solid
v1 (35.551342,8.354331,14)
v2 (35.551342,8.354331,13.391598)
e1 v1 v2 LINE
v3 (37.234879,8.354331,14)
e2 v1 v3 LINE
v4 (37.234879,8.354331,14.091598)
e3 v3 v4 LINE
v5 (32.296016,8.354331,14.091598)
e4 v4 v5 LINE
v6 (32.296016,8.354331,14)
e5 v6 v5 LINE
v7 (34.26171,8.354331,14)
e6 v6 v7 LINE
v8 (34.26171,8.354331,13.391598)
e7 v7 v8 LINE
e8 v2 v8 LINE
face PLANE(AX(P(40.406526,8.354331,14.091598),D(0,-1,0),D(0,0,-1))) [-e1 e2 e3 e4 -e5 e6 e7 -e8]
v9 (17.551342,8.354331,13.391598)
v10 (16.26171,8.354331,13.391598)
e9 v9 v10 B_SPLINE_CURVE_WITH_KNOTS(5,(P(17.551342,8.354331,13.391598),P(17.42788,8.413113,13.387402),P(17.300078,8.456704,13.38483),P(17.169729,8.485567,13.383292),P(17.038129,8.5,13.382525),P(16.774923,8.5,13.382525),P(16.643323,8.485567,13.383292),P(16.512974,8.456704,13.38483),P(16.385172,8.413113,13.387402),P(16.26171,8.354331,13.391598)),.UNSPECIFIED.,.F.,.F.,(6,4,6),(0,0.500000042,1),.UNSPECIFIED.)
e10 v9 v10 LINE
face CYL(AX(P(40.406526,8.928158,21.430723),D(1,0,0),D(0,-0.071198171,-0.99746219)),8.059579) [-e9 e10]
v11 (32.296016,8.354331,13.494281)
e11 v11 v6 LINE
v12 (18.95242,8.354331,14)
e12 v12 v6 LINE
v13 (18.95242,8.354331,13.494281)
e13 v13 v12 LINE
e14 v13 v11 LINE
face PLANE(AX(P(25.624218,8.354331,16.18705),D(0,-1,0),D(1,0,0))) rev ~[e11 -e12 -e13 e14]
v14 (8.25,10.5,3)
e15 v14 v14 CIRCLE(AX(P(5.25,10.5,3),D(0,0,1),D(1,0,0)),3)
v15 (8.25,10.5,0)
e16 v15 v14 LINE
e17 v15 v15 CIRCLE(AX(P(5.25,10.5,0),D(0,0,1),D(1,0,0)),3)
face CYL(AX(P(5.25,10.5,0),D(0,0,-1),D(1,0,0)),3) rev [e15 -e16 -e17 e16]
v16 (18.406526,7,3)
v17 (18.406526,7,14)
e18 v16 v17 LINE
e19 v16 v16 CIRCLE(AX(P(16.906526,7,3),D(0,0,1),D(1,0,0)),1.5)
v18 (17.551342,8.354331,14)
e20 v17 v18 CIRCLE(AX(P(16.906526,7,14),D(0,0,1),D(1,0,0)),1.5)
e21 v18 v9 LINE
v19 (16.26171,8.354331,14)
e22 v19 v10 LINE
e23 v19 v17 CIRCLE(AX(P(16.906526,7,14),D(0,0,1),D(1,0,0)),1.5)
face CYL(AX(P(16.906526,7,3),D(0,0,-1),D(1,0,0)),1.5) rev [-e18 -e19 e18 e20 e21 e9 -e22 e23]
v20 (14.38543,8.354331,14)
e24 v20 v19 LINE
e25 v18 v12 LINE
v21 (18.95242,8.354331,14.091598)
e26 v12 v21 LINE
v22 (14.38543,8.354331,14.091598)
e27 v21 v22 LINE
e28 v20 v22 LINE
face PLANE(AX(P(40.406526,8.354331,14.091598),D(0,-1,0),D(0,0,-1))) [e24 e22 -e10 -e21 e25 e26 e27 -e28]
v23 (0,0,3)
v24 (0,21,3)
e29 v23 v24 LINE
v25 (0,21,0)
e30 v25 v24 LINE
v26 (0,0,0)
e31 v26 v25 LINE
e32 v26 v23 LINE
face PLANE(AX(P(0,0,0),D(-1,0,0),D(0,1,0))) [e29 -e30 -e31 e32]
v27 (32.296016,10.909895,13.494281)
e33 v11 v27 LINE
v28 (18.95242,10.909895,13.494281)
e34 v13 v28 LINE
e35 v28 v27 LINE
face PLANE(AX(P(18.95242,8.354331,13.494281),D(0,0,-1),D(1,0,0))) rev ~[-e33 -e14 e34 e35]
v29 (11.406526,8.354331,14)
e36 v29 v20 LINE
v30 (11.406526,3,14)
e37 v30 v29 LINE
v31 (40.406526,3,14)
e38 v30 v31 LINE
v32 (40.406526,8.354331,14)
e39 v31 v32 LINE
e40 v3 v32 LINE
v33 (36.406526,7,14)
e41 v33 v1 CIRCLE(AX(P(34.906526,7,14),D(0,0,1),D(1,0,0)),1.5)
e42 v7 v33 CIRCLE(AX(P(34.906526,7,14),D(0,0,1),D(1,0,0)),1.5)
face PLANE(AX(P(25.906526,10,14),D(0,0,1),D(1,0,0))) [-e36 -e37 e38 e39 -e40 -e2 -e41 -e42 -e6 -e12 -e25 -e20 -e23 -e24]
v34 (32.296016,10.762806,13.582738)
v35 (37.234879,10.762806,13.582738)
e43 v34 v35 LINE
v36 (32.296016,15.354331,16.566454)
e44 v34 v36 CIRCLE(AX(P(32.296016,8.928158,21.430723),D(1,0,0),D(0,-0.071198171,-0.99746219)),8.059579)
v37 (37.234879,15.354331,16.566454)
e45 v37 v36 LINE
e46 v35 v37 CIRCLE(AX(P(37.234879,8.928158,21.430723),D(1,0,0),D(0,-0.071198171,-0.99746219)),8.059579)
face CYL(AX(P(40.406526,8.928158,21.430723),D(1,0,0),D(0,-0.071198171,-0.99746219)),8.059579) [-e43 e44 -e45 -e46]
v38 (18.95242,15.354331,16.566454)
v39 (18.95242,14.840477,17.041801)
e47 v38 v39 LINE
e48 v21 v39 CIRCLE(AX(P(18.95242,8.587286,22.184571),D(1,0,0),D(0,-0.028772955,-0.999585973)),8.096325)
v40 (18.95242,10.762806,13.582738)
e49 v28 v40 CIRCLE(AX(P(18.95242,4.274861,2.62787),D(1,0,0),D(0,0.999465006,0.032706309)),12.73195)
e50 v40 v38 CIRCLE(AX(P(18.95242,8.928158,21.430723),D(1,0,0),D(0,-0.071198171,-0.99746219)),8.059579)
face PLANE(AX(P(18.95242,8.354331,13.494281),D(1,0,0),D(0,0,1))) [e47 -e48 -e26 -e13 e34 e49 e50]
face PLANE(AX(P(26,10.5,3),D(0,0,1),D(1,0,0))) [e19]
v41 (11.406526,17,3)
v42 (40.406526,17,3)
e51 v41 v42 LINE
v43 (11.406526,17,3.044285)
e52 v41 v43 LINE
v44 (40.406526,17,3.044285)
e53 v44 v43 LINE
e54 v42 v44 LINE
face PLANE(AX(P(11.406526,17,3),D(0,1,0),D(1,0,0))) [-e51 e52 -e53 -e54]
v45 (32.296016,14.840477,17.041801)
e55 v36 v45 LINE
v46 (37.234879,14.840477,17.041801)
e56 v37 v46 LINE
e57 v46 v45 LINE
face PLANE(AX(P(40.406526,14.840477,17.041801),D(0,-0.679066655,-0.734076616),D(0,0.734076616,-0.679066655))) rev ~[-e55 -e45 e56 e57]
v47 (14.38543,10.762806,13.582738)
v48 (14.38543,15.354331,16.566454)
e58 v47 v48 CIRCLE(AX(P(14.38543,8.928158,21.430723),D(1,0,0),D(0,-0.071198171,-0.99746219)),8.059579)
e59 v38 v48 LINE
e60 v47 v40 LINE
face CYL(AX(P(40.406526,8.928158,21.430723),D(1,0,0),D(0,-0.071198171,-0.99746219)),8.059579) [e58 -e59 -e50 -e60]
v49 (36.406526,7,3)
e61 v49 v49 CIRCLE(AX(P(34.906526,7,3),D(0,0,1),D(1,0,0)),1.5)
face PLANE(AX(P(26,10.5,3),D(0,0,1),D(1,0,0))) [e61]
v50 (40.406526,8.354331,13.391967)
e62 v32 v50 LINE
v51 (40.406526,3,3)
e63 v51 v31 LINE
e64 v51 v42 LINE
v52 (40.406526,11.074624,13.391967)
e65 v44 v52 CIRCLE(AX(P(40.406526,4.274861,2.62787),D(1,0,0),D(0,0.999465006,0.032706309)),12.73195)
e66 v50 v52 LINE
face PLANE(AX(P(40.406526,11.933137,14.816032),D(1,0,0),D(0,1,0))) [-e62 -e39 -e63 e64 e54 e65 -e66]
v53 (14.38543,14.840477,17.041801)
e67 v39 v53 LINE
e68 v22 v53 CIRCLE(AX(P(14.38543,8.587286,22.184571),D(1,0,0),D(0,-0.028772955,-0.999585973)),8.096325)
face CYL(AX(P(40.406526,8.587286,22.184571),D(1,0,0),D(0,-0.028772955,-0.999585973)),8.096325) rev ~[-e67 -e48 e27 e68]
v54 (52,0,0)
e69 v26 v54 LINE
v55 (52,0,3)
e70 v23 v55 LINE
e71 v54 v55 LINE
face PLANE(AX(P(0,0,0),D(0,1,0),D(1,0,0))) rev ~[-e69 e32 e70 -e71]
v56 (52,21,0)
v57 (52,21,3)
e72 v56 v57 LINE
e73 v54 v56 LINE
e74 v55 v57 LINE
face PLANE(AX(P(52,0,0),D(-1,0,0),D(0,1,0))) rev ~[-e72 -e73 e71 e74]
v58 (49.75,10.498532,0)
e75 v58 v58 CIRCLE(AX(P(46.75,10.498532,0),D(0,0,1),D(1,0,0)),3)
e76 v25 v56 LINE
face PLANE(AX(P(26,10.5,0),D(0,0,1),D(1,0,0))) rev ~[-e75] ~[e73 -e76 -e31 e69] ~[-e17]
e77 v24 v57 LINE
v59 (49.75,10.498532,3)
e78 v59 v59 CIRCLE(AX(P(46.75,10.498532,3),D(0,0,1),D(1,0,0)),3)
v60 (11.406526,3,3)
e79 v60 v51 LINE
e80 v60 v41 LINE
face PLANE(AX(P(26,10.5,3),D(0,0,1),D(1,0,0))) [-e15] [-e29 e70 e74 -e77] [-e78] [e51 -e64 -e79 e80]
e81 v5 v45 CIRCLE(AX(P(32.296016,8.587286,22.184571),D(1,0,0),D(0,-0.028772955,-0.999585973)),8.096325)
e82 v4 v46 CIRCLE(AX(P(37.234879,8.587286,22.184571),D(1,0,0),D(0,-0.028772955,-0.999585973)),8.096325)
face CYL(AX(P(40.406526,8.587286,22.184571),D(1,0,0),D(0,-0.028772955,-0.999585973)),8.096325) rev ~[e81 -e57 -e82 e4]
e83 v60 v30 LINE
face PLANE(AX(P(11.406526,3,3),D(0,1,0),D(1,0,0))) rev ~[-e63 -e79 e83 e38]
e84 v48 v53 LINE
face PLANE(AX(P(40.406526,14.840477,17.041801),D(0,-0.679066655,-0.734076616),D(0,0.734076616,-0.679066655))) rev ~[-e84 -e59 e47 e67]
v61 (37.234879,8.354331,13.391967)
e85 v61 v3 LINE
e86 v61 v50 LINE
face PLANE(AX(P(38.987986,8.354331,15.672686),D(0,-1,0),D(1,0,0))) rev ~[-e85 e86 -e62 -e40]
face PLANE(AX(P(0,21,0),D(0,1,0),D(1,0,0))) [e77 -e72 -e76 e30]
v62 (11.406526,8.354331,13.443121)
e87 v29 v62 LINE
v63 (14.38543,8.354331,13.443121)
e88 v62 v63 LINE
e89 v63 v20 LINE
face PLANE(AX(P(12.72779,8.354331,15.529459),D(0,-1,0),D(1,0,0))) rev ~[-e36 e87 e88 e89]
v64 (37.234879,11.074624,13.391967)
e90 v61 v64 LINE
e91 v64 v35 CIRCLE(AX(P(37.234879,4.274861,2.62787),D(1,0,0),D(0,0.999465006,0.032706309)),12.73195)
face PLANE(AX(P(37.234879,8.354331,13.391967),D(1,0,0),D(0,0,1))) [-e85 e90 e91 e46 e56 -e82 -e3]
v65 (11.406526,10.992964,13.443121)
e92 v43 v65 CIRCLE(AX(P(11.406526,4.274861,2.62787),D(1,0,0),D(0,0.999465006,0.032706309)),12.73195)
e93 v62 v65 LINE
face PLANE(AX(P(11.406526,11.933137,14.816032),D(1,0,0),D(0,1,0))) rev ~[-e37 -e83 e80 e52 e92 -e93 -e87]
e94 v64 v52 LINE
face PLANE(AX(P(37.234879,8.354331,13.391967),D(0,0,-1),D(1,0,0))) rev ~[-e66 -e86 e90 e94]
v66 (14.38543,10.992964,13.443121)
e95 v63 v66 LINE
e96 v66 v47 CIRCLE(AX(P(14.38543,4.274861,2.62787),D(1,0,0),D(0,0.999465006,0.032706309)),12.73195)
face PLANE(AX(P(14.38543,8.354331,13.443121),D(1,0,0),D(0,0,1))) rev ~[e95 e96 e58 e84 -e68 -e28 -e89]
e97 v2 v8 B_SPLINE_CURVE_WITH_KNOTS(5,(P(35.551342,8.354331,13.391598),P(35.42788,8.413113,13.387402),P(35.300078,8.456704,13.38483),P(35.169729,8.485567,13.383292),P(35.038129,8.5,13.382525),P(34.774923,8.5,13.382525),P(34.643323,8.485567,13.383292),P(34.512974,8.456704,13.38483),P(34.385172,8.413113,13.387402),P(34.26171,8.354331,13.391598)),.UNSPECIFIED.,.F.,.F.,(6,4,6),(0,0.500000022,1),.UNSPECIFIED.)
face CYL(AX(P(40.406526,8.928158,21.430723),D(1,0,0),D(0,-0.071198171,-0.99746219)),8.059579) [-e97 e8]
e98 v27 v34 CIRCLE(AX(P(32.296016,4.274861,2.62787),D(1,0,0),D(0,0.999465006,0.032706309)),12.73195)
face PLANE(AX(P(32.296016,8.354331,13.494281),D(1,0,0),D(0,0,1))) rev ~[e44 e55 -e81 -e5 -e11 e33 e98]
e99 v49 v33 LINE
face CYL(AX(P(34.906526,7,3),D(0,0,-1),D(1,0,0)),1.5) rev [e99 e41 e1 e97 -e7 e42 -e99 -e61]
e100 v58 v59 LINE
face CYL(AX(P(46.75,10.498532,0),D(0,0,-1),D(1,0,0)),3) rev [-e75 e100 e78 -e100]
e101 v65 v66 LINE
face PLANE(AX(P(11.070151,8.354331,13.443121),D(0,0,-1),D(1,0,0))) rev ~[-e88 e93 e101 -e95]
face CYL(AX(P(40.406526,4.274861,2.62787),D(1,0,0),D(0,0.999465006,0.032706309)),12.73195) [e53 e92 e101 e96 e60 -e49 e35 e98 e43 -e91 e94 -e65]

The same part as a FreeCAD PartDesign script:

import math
import FreeCAD as App
import Part
import Sketcher
Q = App.Units.Quantity


def add_polygon(sketch, points):
    """Adds a closed chain of lines whose ends are joined by coincident constraints."""
    first, n = sketch.GeometryCount, len(points)
    for a, b in zip(points, points[1:] + points[:1]):
        sketch.addGeometry(Part.LineSegment(App.Vector(*a, 0), App.Vector(*b, 0)), False)
    for i in range(n):
        sketch.addConstraint(Sketcher.Constraint("Coincident", first + i, 2, first + (i + 1) % n, 1))

doc = App.newDocument("Part")
body = doc.addObject("PartDesign::Body", "Body")

# Sketch on XY plane
sketch1 = body.newObject("Sketcher::SketchObject", "Sketch")
sketch1.AttachmentSupport = (doc.getObject("XY_Plane"), [""])
sketch1.MapMode = "FlatFace"
add_polygon(sketch1, [(0, 21), (0, 0), (52, 0), (52, 21)])  # lines 0-3
sketch1.addGeometry(Part.Circle(App.Vector(46.75, 10.498532, 0), App.Vector(0, 0, 1), 3), False)  # 4
sketch1.addGeometry(Part.Circle(App.Vector(5.25, 10.5, 0), App.Vector(0, 0, 1), 3), False)  # 5
sketch1.addConstraint([
    Sketcher.Constraint("Vertical", 0),
    Sketcher.Constraint("Horizontal", 1),
    Sketcher.Constraint("Vertical", 2),
    Sketcher.Constraint("Horizontal", 3),
    Sketcher.Constraint("Coincident", 0, 2, -1, 1),
    Sketcher.Constraint("Equal", 4, 5),
    Sketcher.Constraint("Diameter", 4, Q("6 mm")),
    Sketcher.Constraint("DistanceX", 1, 1, 1, 2, Q("52 mm")),
    Sketcher.Constraint("DistanceY", 0, 2, 0, 1, Q("21 mm")),
    Sketcher.Constraint("DistanceY", -1, 1, 5, 3, Q("10.5 mm")),
    Sketcher.Constraint("DistanceX", 5, 3, 4, 3, Q("41.5 mm")),
    Sketcher.Constraint("DistanceX", -1, 1, 4, 3, Q("46.75 mm")),
    Sketcher.Constraint("DistanceY", -1, 1, 4, 3, Q("10.498532 mm")),
])
pad1 = body.newObject("PartDesign::Pad", "Pad")
pad1.Profile = sketch1
pad1.Length = 3

# Sketch on XY plane
sketch2 = body.newObject("Sketcher::SketchObject", "Sketch001")
sketch2.AttachmentSupport = (doc.getObject("XY_Plane"), [""])
sketch2.MapMode = "FlatFace"
sketch2.AttachmentOffset = App.Placement(App.Vector(0, 0, 3), App.Rotation())
add_polygon(sketch2, [(11.406526, 17), (11.406526, 3), (40.406526, 3), (40.406526, 17)])  # lines 0-3
sketch2.addGeometry(Part.Circle(App.Vector(16.906526, 7, 0), App.Vector(0, 0, 1), 1.5), False)  # 4
sketch2.addGeometry(Part.Circle(App.Vector(34.906526, 7, 0), App.Vector(0, 0, 1), 1.5), False)  # 5
sketch2.addConstraint([
    Sketcher.Constraint("Vertical", 0),
    Sketcher.Constraint("Horizontal", 1),
    Sketcher.Constraint("Vertical", 2),
    Sketcher.Constraint("Horizontal", 3),
    Sketcher.Constraint("Equal", 4, 5),
    Sketcher.Constraint("Horizontal", 4, 3, 5, 3),
    Sketcher.Constraint("Diameter", 4, Q("3 mm")),
    Sketcher.Constraint("DistanceX", 1, 1, 1, 2, Q("29 mm")),
    Sketcher.Constraint("DistanceY", 0, 2, 0, 1, Q("14 mm")),
    Sketcher.Constraint("DistanceY", -1, 1, 4, 3, Q("7 mm")),
    Sketcher.Constraint("DistanceY", -1, 1, 0, 2, Q("3 mm")),
    Sketcher.Constraint("DistanceX", 4, 3, 5, 3, Q("18 mm")),
    Sketcher.Constraint("DistanceX", 0, 2, 4, 3, Q("5.5 mm")),
    Sketcher.Constraint("DistanceX", -1, 1, 4, 3, Q("16.906526 mm")),
])
pad2 = body.newObject("PartDesign::Pad", "Pad001")
pad2.Profile = sketch2
pad2.Length = 11

# Sketch on YZ plane
sketch3 = body.newObject("Sketcher::SketchObject", "Sketch002")
sketch3.AttachmentSupport = (doc.getObject("YZ_Plane"), [""])
sketch3.MapMode = "FlatFace"
sketch3.AttachmentOffset = App.Placement(App.Vector(0, 0, 40.406526), App.Rotation())
sketch3.addGeometry([
    Part.ArcOfCircle(Part.Circle(App.Vector(4.274861, 2.62787, 0), App.Vector(0, 0, 1), 12.73195), math.radians(1.874268), math.radians(63.277675)),
    Part.LineSegment(App.Vector(17, 3.044285, 0), App.Vector(17, 14, 0)),
    Part.LineSegment(App.Vector(17, 14, 0), App.Vector(10, 14, 0)),
], False)
sketch3.addConstraint([
    Sketcher.Constraint("Coincident", 0, 1, 1, 1),
    Sketcher.Constraint("Coincident", 1, 2, 2, 1),
    Sketcher.Constraint("Coincident", 2, 2, 0, 2),
    Sketcher.Constraint("Vertical", 1),
    Sketcher.Constraint("Horizontal", 2),
    Sketcher.Constraint("DistanceX", 2, 2, 2, 1, Q("7 mm")),
    Sketcher.Constraint("DistanceX", -1, 1, 0, 1, Q("17 mm")),
    Sketcher.Constraint("DistanceY", -1, 1, 1, 2, Q("14 mm")),
    Sketcher.Constraint("Radius", 0, Q("12.73195 mm")),
    Sketcher.Constraint("DistanceY", 1, 1, 1, 2, Q("10.955715 mm")),
])
pocket1 = body.newObject("PartDesign::Pocket", "Pocket")
pocket1.Profile = sketch3
pocket1.Length = 100

# Sketch on YZ plane
sketch4 = body.newObject("Sketcher::SketchObject", "Sketch003")
sketch4.AttachmentSupport = (doc.getObject("YZ_Plane"), [""])
sketch4.MapMode = "FlatFace"
sketch4.AttachmentOffset = App.Placement(App.Vector(0, 0, 40.406526), App.Rotation())
sketch4.addGeometry([
    Part.LineSegment(App.Vector(8.354331, 14.091598, 0), App.Vector(8.354331, 13.391598, 0)),
    Part.ArcOfCircle(Part.Circle(App.Vector(8.928158, 21.430723, 0), App.Vector(0, 0, 1), 8.059579), math.radians(-94.082809), math.radians(-37.123773)),
    Part.LineSegment(App.Vector(15.354331, 16.566454, 0), App.Vector(14.840477, 17.041801, 0)),
    Part.ArcOfCircle(Part.Circle(App.Vector(8.587286, 22.184571, 0), App.Vector(0, 0, 1), 8.096325), math.radians(-91.648796), math.radians(-39.434675)),
], False)
sketch4.addConstraint([
    Sketcher.Constraint("Coincident", 0, 2, 1, 1),
    Sketcher.Constraint("Coincident", 1, 2, 2, 1),
    Sketcher.Constraint("Coincident", 2, 2, 3, 2),
    Sketcher.Constraint("Coincident", 3, 1, 0, 1),
    Sketcher.Constraint("Vertical", 0),
    Sketcher.Constraint("DistanceY", 0, 2, 0, 1, Q("0.7 mm")),
    Sketcher.Constraint("DistanceX", 0, 2, 1, 2, Q("7 mm")),
    Sketcher.Constraint("Distance", 2, Q("0.700001 mm")),
    Sketcher.Constraint("Radius", 1, Q("8.059579 mm")),
    Sketcher.Constraint("Radius", 3, Q("8.096325 mm")),
    Sketcher.Constraint("DistanceY", -1, 1, 2, 2, Q("17.041801 mm")),
    Sketcher.Constraint("DistanceX", -1, 1, 1, 3, Q("8.928158 mm")),
    Sketcher.Constraint("DistanceY", -1, 1, 3, 3, Q("22.184571 mm")),
    Sketcher.Constraint("DistanceX", -1, 1, 0, 2, Q("8.354331 mm")),
])
pad3 = body.newObject("PartDesign::Pad", "Pad002")
pad3.Profile = sketch4
pad3.Length = 29
pad3.Reversed = True

# Sketch on XZ plane
sketch5 = body.newObject("Sketcher::SketchObject", "Sketch004")
sketch5.AttachmentSupport = (doc.getObject("XZ_Plane"), [""])
sketch5.MapMode = "FlatFace"
sketch5.AttachmentOffset = App.Placement(App.Vector(0, 0, -8.354331), App.Rotation())
add_polygon(sketch5, [(37.234879, 17.953405), (37.234879, 13.391967), (40.741093, 13.391967), (40.741093, 17.953405)])  # lines 0-3
add_polygon(sketch5, [(18.95242, 18.879819), (18.95242, 13.494281), (32.296016, 13.494281), (32.296016, 18.879819)])  # lines 4-7
add_polygon(sketch5, [(11.070151, 17.615797), (11.070151, 13.443121), (14.38543, 13.443121), (14.38543, 17.615797)])  # lines 8-11
sketch5.addConstraint([
    Sketcher.Constraint("Vertical", 0),
    Sketcher.Constraint("Horizontal", 1),
    Sketcher.Constraint("Vertical", 2),
    Sketcher.Constraint("Horizontal", 3),
    Sketcher.Constraint("Vertical", 4),
    Sketcher.Constraint("Horizontal", 5),
    Sketcher.Constraint("Vertical", 6),
    Sketcher.Constraint("Horizontal", 7),
    Sketcher.Constraint("Vertical", 8),
    Sketcher.Constraint("Horizontal", 9),
    Sketcher.Constraint("Vertical", 10),
    Sketcher.Constraint("Horizontal", 11),
    Sketcher.Constraint("DistanceX", 9, 1, 9, 2, Q("3.315279 mm")),
    Sketcher.Constraint("DistanceY", 0, 2, 0, 1, Q("4.561438 mm")),
    Sketcher.Constraint("DistanceY", 4, 2, 4, 1, Q("5.385539 mm")),
    Sketcher.Constraint("DistanceY", 8, 2, 7, 2, Q("5.436699 mm")),
    Sketcher.Constraint("DistanceX", 1, 1, 1, 2, Q("3.506214 mm")),
    Sketcher.Constraint("DistanceX", 5, 1, 5, 2, Q("13.343595 mm")),
    Sketcher.Constraint("DistanceY", 8, 2, 8, 1, Q("4.172676 mm")),
    Sketcher.Constraint("DistanceX", -1, 1, 0, 2, Q("37.234879 mm")),
    Sketcher.Constraint("DistanceX", -1, 1, 4, 2, Q("18.95242 mm")),
    Sketcher.Constraint("DistanceY", -1, 1, 4, 2, Q("13.494281 mm")),
    Sketcher.Constraint("DistanceX", -1, 1, 8, 2, Q("11.070151 mm")),
    Sketcher.Constraint("DistanceY", -1, 1, 0, 2, Q("13.391967 mm")),
])
pocket2 = body.newObject("PartDesign::Pocket", "Pocket001")
pocket2.Profile = sketch5
pocket2.Length = 7

doc.recompute()
